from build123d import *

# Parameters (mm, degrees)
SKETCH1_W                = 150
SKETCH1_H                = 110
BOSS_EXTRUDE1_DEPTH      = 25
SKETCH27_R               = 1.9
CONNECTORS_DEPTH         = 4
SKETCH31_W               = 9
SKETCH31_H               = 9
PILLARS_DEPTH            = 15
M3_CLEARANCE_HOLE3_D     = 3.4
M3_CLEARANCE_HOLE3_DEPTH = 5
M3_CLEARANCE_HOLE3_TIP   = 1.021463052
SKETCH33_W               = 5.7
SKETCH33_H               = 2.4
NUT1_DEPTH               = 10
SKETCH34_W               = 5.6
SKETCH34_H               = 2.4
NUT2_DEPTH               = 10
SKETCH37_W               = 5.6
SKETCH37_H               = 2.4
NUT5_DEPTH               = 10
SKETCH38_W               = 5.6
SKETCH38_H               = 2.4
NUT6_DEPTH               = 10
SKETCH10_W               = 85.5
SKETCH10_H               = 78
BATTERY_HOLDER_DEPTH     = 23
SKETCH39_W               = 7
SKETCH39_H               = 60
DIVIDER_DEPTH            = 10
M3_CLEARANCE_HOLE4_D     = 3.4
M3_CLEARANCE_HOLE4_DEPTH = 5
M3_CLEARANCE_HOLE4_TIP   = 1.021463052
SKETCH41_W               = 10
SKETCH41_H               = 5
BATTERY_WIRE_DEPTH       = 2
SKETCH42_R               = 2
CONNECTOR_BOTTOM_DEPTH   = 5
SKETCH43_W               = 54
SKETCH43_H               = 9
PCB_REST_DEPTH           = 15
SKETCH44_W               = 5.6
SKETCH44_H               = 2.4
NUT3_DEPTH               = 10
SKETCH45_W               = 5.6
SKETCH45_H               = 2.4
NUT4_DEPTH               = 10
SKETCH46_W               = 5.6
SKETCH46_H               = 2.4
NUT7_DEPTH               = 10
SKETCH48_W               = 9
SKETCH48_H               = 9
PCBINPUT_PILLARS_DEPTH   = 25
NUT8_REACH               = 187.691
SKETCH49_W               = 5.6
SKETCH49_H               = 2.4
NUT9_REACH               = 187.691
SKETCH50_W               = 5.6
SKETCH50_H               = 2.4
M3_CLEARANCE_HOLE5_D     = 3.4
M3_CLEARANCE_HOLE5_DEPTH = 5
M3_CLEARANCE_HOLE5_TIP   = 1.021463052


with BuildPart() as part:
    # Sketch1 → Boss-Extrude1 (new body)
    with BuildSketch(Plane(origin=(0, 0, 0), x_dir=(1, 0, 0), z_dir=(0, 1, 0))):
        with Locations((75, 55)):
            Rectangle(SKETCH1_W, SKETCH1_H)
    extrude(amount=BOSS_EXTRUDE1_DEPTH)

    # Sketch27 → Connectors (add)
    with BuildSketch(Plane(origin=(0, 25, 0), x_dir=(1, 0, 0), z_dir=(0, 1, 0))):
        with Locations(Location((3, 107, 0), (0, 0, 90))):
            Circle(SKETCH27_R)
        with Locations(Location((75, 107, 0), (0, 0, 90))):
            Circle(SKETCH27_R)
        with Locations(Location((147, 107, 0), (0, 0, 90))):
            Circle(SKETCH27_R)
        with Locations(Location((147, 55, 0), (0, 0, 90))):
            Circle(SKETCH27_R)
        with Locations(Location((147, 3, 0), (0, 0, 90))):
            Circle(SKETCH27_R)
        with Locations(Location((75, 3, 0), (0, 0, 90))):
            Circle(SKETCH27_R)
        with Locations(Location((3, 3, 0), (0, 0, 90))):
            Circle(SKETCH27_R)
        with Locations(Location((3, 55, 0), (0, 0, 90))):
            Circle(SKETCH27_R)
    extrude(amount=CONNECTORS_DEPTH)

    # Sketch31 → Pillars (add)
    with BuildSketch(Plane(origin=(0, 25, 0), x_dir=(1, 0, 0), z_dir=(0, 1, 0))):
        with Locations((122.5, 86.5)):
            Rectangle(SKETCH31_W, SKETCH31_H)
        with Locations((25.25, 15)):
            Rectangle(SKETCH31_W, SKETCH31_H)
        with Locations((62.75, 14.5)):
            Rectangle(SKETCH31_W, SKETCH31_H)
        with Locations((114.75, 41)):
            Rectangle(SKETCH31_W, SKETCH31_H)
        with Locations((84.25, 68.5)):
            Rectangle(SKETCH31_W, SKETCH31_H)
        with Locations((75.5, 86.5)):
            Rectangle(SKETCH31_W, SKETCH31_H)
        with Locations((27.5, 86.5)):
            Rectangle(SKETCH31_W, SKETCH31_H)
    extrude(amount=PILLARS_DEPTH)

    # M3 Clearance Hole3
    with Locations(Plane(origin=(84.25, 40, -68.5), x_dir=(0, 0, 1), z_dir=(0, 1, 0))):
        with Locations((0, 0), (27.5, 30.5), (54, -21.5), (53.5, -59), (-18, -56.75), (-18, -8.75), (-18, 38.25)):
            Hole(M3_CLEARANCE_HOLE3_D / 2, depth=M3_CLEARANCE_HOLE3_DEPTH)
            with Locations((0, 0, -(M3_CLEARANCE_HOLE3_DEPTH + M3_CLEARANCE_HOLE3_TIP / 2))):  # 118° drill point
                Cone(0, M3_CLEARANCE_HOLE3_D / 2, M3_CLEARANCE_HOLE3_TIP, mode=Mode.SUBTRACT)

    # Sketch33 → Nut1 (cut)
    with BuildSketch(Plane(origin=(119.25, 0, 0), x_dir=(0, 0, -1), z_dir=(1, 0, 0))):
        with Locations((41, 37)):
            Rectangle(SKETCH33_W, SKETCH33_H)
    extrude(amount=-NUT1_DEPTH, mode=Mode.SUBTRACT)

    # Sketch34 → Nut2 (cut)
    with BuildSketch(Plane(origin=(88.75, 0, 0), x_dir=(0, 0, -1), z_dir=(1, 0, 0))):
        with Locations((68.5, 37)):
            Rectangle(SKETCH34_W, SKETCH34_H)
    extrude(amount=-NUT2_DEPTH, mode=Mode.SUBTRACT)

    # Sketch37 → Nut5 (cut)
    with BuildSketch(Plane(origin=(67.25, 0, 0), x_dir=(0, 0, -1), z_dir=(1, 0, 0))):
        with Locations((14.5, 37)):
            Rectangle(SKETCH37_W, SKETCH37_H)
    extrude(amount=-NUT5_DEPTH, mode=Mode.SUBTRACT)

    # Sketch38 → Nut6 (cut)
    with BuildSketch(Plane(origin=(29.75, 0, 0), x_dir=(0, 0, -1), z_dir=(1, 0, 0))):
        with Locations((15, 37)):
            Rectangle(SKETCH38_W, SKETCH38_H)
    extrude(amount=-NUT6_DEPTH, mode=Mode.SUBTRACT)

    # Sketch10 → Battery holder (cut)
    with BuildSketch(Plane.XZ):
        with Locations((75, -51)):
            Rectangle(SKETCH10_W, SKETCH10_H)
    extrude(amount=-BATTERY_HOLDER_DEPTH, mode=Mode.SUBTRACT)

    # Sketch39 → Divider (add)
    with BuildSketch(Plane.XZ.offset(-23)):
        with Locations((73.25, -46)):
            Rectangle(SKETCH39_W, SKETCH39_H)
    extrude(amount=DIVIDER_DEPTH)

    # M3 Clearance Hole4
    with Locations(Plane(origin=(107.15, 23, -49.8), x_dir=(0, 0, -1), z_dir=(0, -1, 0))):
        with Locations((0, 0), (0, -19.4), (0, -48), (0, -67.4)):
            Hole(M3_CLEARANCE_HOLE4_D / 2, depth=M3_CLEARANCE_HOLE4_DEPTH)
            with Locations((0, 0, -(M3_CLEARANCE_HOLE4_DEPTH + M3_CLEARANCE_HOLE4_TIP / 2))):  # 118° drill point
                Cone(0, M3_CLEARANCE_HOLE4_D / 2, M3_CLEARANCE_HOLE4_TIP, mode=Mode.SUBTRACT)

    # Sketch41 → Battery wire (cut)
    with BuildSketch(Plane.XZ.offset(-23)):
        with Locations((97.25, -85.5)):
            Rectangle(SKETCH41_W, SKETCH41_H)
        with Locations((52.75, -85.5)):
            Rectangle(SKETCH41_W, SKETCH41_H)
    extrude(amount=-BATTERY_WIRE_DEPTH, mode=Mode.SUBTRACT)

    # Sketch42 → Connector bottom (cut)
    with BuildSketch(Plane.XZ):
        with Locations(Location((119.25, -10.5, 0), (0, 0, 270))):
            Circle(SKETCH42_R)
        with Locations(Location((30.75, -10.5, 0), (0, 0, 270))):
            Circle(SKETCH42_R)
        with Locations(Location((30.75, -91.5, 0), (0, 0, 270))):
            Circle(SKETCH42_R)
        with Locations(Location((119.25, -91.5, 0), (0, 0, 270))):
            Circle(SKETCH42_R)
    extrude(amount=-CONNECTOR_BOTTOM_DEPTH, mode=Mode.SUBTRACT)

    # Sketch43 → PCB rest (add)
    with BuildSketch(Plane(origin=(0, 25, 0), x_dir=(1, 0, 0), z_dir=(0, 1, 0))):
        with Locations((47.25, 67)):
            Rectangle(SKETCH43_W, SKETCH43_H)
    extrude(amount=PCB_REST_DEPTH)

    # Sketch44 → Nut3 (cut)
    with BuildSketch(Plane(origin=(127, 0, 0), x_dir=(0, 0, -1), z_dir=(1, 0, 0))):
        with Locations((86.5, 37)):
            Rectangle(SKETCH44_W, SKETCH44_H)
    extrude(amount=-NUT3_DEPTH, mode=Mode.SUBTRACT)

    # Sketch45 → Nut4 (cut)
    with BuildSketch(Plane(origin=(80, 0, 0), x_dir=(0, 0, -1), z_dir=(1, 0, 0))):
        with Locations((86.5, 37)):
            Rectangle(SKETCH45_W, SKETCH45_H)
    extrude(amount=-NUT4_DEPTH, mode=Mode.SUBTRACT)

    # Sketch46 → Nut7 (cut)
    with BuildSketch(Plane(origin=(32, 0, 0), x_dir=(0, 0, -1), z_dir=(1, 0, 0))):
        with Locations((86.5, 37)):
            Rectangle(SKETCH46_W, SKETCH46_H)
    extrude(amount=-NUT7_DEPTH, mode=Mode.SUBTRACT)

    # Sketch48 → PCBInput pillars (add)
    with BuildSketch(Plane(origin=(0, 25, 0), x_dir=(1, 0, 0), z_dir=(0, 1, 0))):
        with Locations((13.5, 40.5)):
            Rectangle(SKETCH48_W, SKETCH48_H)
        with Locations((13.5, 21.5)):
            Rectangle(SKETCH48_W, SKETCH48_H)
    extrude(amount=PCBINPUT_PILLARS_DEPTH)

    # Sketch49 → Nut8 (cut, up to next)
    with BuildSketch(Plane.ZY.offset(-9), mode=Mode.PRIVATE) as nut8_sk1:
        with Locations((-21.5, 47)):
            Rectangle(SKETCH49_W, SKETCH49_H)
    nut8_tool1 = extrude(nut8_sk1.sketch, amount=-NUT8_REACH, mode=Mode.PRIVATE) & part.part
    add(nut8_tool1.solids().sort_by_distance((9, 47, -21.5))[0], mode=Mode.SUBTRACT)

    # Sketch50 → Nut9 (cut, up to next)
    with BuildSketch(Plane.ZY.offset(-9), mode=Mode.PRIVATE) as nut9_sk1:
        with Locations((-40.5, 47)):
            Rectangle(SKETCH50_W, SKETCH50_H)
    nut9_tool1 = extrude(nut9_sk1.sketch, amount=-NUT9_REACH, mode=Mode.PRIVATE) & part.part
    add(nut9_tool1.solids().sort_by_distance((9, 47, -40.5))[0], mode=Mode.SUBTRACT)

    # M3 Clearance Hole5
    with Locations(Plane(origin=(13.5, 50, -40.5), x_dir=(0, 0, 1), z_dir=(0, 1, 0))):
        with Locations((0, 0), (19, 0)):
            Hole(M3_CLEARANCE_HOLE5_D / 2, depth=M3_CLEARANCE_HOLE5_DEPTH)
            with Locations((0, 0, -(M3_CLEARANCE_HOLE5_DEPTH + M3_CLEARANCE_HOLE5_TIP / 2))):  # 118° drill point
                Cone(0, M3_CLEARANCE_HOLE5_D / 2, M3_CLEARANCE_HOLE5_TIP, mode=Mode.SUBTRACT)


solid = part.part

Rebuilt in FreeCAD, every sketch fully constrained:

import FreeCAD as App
import Part
import Sketcher
Q = App.Units.Quantity


def add_polygon(sketch, points):
    """Adds a closed chain of lines whose ends are joined by coincident constraints."""
    first, n = sketch.GeometryCount, len(points)
    for a, b in zip(points, points[1:] + points[:1]):
        sketch.addGeometry(Part.LineSegment(App.Vector(*a, 0), App.Vector(*b, 0)), False)
    for i in range(n):
        sketch.addConstraint(Sketcher.Constraint("Coincident", first + i, 2, first + (i + 1) % n, 1))

doc = App.newDocument("Part")
body = doc.addObject("PartDesign::Body", "Body")

sketch1 = body.newObject("Sketcher::SketchObject", "Sketch")
sketch1.AttachmentSupport = (doc.getObject("XZ_Plane"), [""])
sketch1.MapMode = "FlatFace"
add_polygon(sketch1, [(0, -110), (0, 0), (150, 0), (150, -110)])
sketch1.addConstraint(Sketcher.Constraint("Vertical", 0))
sketch1.addConstraint(Sketcher.Constraint("Horizontal", 1))
sketch1.addConstraint(Sketcher.Constraint("Vertical", 2))
sketch1.addConstraint(Sketcher.Constraint("Horizontal", 3))
sketch1.addConstraint(Sketcher.Constraint("Coincident", 0, 2, -1, 1))
sketch1.addConstraint(Sketcher.Constraint("DistanceX", 1, 1, 1, 2, Q("150 mm")))
sketch1.addConstraint(Sketcher.Constraint("DistanceY", 0, 1, 0, 2, Q("110 mm")))
pad1 = body.newObject("PartDesign::Pad", "Pad")
pad1.Profile = sketch1
pad1.Length = 25
pad1.Reversed = True

sketch2 = body.newObject("Sketcher::SketchObject", "Sketch001")
sketch2.AttachmentSupport = (doc.getObject("XZ_Plane"), [""])
sketch2.MapMode = "FlatFace"
sketch2.AttachmentOffset = App.Placement(App.Vector(0, 0, -25), App.Rotation())
sketch2.addGeometry(Part.Circle(App.Vector(3, -107, 0), App.Vector(0, 0, 1), 1.9), False)
sketch2.addGeometry(Part.Circle(App.Vector(75, -107, 0), App.Vector(0, 0, 1), 1.9), False)
sketch2.addGeometry(Part.Circle(App.Vector(147, -107, 0), App.Vector(0, 0, 1), 1.9), False)
sketch2.addGeometry(Part.Circle(App.Vector(147, -55, 0), App.Vector(0, 0, 1), 1.9), False)
sketch2.addGeometry(Part.Circle(App.Vector(147, -3, 0), App.Vector(0, 0, 1), 1.9), False)
sketch2.addGeometry(Part.Circle(App.Vector(75, -3, 0), App.Vector(0, 0, 1), 1.9), False)
sketch2.addGeometry(Part.Circle(App.Vector(3, -3, 0), App.Vector(0, 0, 1), 1.9), False)
sketch2.addGeometry(Part.Circle(App.Vector(3, -55, 0), App.Vector(0, 0, 1), 1.9), False)
sketch2.addConstraint(Sketcher.Constraint("Equal", 0, 1))
sketch2.addConstraint(Sketcher.Constraint("Equal", 1, 2))
sketch2.addConstraint(Sketcher.Constraint("Equal", 2, 3))
sketch2.addConstraint(Sketcher.Constraint("Equal", 3, 4))
sketch2.addConstraint(Sketcher.Constraint("Equal", 4, 5))
sketch2.addConstraint(Sketcher.Constraint("Equal", 5, 6))
sketch2.addConstraint(Sketcher.Constraint("Equal", 6, 7))
sketch2.addConstraint(Sketcher.Constraint("Horizontal", 0, 3, 1, 3))
sketch2.addConstraint(Sketcher.Constraint("Horizontal", 1, 3, 2, 3))
sketch2.addConstraint(Sketcher.Constraint("Horizontal", 4, 3, 5, 3))
sketch2.addConstraint(Sketcher.Constraint("Horizontal", 5, 3, 6, 3))
sketch2.addConstraint(Sketcher.Constraint("Horizontal", 3, 3, 7, 3))
sketch2.addConstraint(Sketcher.Constraint("Vertical", 2, 3, 3, 3))
sketch2.addConstraint(Sketcher.Constraint("Vertical", 3, 3, 4, 3))
sketch2.addConstraint(Sketcher.Constraint("Vertical", 1, 3, 5, 3))
sketch2.addConstraint(Sketcher.Constraint("Vertical", 0, 3, 6, 3))
sketch2.addConstraint(Sketcher.Constraint("Vertical", 6, 3, 7, 3))
sketch2.addConstraint(Sketcher.Constraint("Diameter", 0, Q("3.8 mm")))
sketch2.addConstraint(Sketcher.Constraint("DistanceX", -1, 1, 0, 3, Q("3 mm")))
sketch2.addConstraint(Sketcher.Constraint("DistanceY", 0, 3, -1, 1, Q("107 mm")))
sketch2.addConstraint(Sketcher.Constraint("DistanceX", -1, 1, 1, 3, Q("75 mm")))
sketch2.addConstraint(Sketcher.Constraint("DistanceX", -1, 1, 2, 3, Q("147 mm")))
sketch2.addConstraint(Sketcher.Constraint("DistanceY", 3, 3, -1, 1, Q("55 mm")))
sketch2.addConstraint(Sketcher.Constraint("DistanceY", 4, 3, -1, 1, Q("3 mm")))
pad2 = body.newObject("PartDesign::Pad", "Pad001")
pad2.Profile = sketch2
pad2.Length = 4
pad2.Reversed = True

sketch3 = body.newObject("Sketcher::SketchObject", "Sketch002")
sketch3.AttachmentSupport = (doc.getObject("XZ_Plane"), [""])
sketch3.MapMode = "FlatFace"
sketch3.AttachmentOffset = App.Placement(App.Vector(0, 0, -25), App.Rotation())
add_polygon(sketch3, [(118, -91), (118, -82), (127, -82), (127, -91)])
add_polygon(sketch3, [(21, -20), (21, -10), (30, -10), (30, -20)])
add_polygon(sketch3, [(58, -19), (58, -10), (67, -10), (67, -19)])
add_polygon(sketch3, [(110, -46), (110, -36), (119, -36), (119, -46)])
add_polygon(sketch3, [(80, -73), (80, -64), (89, -64), (89, -73)])
add_polygon(sketch3, [(71, -91), (71, -82), (80, -82), (80, -91)])
add_polygon(sketch3, [(23, -91), (23, -82), (32, -82), (32, -91)])
sketch3.addConstraint(Sketcher.Constraint("Vertical", 0))
sketch3.addConstraint(Sketcher.Constraint("Horizontal", 1))
sketch3.addConstraint(Sketcher.Constraint("Vertical", 2))
sketch3.addConstraint(Sketcher.Constraint("Horizontal", 3))
sketch3.addConstraint(Sketcher.Constraint("Vertical", 4))
sketch3.addConstraint(Sketcher.Constraint("Horizontal", 5))
sketch3.addConstraint(Sketcher.Constraint("Vertical", 6))
sketch3.addConstraint(Sketcher.Constraint("Horizontal", 7))
sketch3.addConstraint(Sketcher.Constraint("Vertical", 8))
sketch3.addConstraint(Sketcher.Constraint("Horizontal", 9))
sketch3.addConstraint(Sketcher.Constraint("Vertical", 10))
sketch3.addConstraint(Sketcher.Constraint("Horizontal", 11))
sketch3.addConstraint(Sketcher.Constraint("Vertical", 12))
sketch3.addConstraint(Sketcher.Constraint("Horizontal", 13))
sketch3.addConstraint(Sketcher.Constraint("Vertical", 14))
sketch3.addConstraint(Sketcher.Constraint("Horizontal", 15))
sketch3.addConstraint(Sketcher.Constraint("Vertical", 16))
sketch3.addConstraint(Sketcher.Constraint("Horizontal", 17))
sketch3.addConstraint(Sketcher.Constraint("Vertical", 18))
sketch3.addConstraint(Sketcher.Constraint("Horizontal", 19))
sketch3.addConstraint(Sketcher.Constraint("Vertical", 20))
sketch3.addConstraint(Sketcher.Constraint("Horizontal", 21))
sketch3.addConstraint(Sketcher.Constraint("Vertical", 22))
sketch3.addConstraint(Sketcher.Constraint("Horizontal", 23))
sketch3.addConstraint(Sketcher.Constraint("Vertical", 24))
sketch3.addConstraint(Sketcher.Constraint("Horizontal", 25))
sketch3.addConstraint(Sketcher.Constraint("Vertical", 26))
sketch3.addConstraint(Sketcher.Constraint("Horizontal", 27))
sketch3.addConstraint(Sketcher.Constraint("Horizontal", 1, 2, 20, 2))
sketch3.addConstraint(Sketcher.Constraint("Horizontal", 3, 2, 22, 2))
sketch3.addConstraint(Sketcher.Constraint("Horizontal", 21, 2, 24, 2))
sketch3.addConstraint(Sketcher.Constraint("Horizontal", 23, 2, 26, 2))
sketch3.addConstraint(Sketcher.Constraint("Equal", 3, 5))
sketch3.addConstraint(Sketcher.Constraint("Equal", 7, 9))
sketch3.addConstraint(Sketcher.Constraint("Equal", 11, 13))
sketch3.addConstraint(Sketcher.Constraint("Equal", 15, 17))
sketch3.addConstraint(Sketcher.Constraint("Equal", 19, 21))
sketch3.addConstraint(Sketcher.Constraint("Equal", 23, 25))
sketch3.addConstraint(Sketcher.Constraint("Equal", 27, 0))
sketch3.addConstraint(Sketcher.Constraint("Equal", 2, 4))
sketch3.addConstraint(Sketcher.Constraint("Equal", 6, 8))
sketch3.addConstraint(Sketcher.Constraint("Equal", 10, 12))
sketch3.addConstraint(Sketcher.Constraint("Equal", 14, 16))
sketch3.addConstraint(Sketcher.Constraint("DistanceX", 1, 1, 1, 2, Q("9 mm")))
sketch3.addConstraint(Sketcher.Constraint("DistanceX", -1, 1, 0, 2, Q("118 mm")))
sketch3.addConstraint(Sketcher.Constraint("DistanceY", 0, 2, -1, 1, Q("82 mm")))
sketch3.addConstraint(Sketcher.Constraint("DistanceY", 8, 2, -1, 1, Q("10 mm")))
sketch3.addConstraint(Sketcher.Constraint("DistanceY", 16, 2, -1, 1, Q("64 mm")))
sketch3.addConstraint(Sketcher.Constraint("DistanceX", -1, 1, 20, 2, Q("71 mm")))
sketch3.addConstraint(Sketcher.Constraint("DistanceX", -1, 1, 24, 2, Q("23 mm")))
sketch3.addConstraint(Sketcher.Constraint("DistanceX", 10, 2, 12, 2, Q("43 mm")))
sketch3.addConstraint(Sketcher.Constraint("DistanceY", 4, 2, -1, 1, Q("10.5 mm")))
sketch3.addConstraint(Sketcher.Constraint("DistanceY", 12, 2, -1, 1, Q("36.5 mm")))
sketch3.addConstraint(Sketcher.Constraint("DistanceX", 5, 2, 8, 2, Q("28.5 mm")))
sketch3.addConstraint(Sketcher.Constraint("DistanceX", 16, 2, 15, 2, Q("30.5 mm")))
sketch3.addConstraint(Sketcher.Constraint("DistanceX", -1, 1, 4, 2, Q("20.75 mm")))
pad3 = body.newObject("PartDesign::Pad", "Pad002")
pad3.Profile = sketch3
pad3.Length = 15
pad3.Reversed = True

sketch4 = body.newObject("Sketcher::SketchObject", "Sketch003")
sketch4.AttachmentSupport = (doc.getObject("XZ_Plane"), [""])
sketch4.MapMode = "FlatFace"
sketch4.AttachmentOffset = App.Placement(App.Vector(0, 0, -40), App.Rotation())
sketch4.addGeometry(Part.Circle(App.Vector(84.2, -68.5, 0), App.Vector(0, 0, 1), 1.7), False)
sketch4.addGeometry(Part.Circle(App.Vector(114.8, -41, 0), App.Vector(0, 0, 1), 1.7), False)
sketch4.addGeometry(Part.Circle(App.Vector(62.8, -14.5, 0), App.Vector(0, 0, 1), 1.7), False)
sketch4.addGeometry(Part.Circle(App.Vector(25.2, -15, 0), App.Vector(0, 0, 1), 1.7), False)
sketch4.addGeometry(Part.Circle(App.Vector(27.5, -86.5, 0), App.Vector(0, 0, 1), 1.7), False)
sketch4.addGeometry(Part.Circle(App.Vector(75.5, -86.5, 0), App.Vector(0, 0, 1), 1.7), False)
sketch4.addGeometry(Part.Circle(App.Vector(122.5, -86.5, 0), App.Vector(0, 0, 1), 1.7), False)
sketch4.addConstraint(Sketcher.Constraint("Equal", 0, 1))
sketch4.addConstraint(Sketcher.Constraint("Equal", 1, 2))
sketch4.addConstraint(Sketcher.Constraint("Equal", 2, 3))
sketch4.addConstraint(Sketcher.Constraint("Equal", 3, 4))
sketch4.addConstraint(Sketcher.Constraint("Equal", 4, 5))
sketch4.addConstraint(Sketcher.Constraint("Equal", 5, 6))
sketch4.addConstraint(Sketcher.Constraint("Horizontal", 4, 3, 5, 3))
sketch4.addConstraint(Sketcher.Constraint("Horizontal", 5, 3, 6, 3))
sketch4.addConstraint(Sketcher.Constraint("Diameter", 0, Q("3.4 mm")))
sketch4.addConstraint(Sketcher.Constraint("DistanceY", 1, 3, -1, 1, Q("41 mm")))
sketch4.addConstraint(Sketcher.Constraint("DistanceY", 3, 3, -1, 1, Q("15 mm")))
sketch4.addConstraint(Sketcher.Constraint("DistanceY", 0, 3, 2, 3, Q("54 mm")))
sketch4.addConstraint(Sketcher.Constraint("DistanceX", 2, 3, 1, 3, Q("52 mm")))
sketch4.addConstraint(Sketcher.Constraint("DistanceX", 3, 3, 0, 3, Q("59 mm")))
sketch4.addConstraint(Sketcher.Constraint("DistanceY", 4, 3, 0, 3, Q("18 mm")))
sketch4.addConstraint(Sketcher.Constraint("DistanceX", 4, 3, 5, 3, Q("48 mm")))
sketch4.addConstraint(Sketcher.Constraint("DistanceX", 5, 3, 6, 3, Q("47 mm")))
sketch4.addConstraint(Sketcher.Constraint("DistanceY", 0, 3, -1, 1, Q("68.5 mm")))
sketch4.addConstraint(Sketcher.Constraint("DistanceX", -1, 1, 4, 3, Q("27.5 mm")))
sketch4.addConstraint(Sketcher.Constraint("DistanceX", 0, 3, 1, 3, Q("30.5 mm")))
sketch4.addConstraint(Sketcher.Constraint("DistanceX", -1, 1, 0, 3, Q("84.25 mm")))
doc.recompute()
hole = body.newObject("PartDesign::Hole", "Hole")
hole.Profile = sketch4
hole.ThreadType = "None"
hole.Diameter = 3.4
hole.DepthType = "Dimension"
hole.Depth = 5
hole.DrillPoint = "Angled"
hole.DrillPointAngle = 118
hole.Reversed = True

sketch5 = body.newObject("Sketcher::SketchObject", "Sketch004")
sketch5.AttachmentSupport = (doc.getObject("YZ_Plane"), [""])
sketch5.MapMode = "FlatFace"
sketch5.AttachmentOffset = App.Placement(App.Vector(0, 0, 119.25), App.Rotation())
add_polygon(sketch5, [(38.2, -38.1), (35.8, -38.1), (35.8, -43.9), (38.2, -43.9)])
sketch5.addConstraint(Sketcher.Constraint("Horizontal", 0))
sketch5.addConstraint(Sketcher.Constraint("Vertical", 1))
sketch5.addConstraint(Sketcher.Constraint("Horizontal", 2))
sketch5.addConstraint(Sketcher.Constraint("Vertical", 3))
sketch5.addConstraint(Sketcher.Constraint("DistanceX", 0, 2, 0, 1, Q("2.4 mm")))
sketch5.addConstraint(Sketcher.Constraint("DistanceY", 1, 2, 1, 1, Q("5.7 mm")))
sketch5.addConstraint(Sketcher.Constraint("DistanceX", -1, 1, 0, 2, Q("35.8 mm")))
sketch5.addConstraint(Sketcher.Constraint("DistanceY", 0, 2, -1, 1, Q("38.15 mm")))
pocket1 = body.newObject("PartDesign::Pocket", "Pocket")
pocket1.Profile = sketch5
pocket1.Length = 10

sketch6 = body.newObject("Sketcher::SketchObject", "Sketch005")
sketch6.AttachmentSupport = (doc.getObject("YZ_Plane"), [""])
sketch6.MapMode = "FlatFace"
sketch6.AttachmentOffset = App.Placement(App.Vector(0, 0, 88.75), App.Rotation())
add_polygon(sketch6, [(38.2, -65.7), (35.8, -65.7), (35.8, -71.3), (38.2, -71.3)])
sketch6.addConstraint(Sketcher.Constraint("Horizontal", 0))
sketch6.addConstraint(Sketcher.Constraint("Vertical", 1))
sketch6.addConstraint(Sketcher.Constraint("Horizontal", 2))
sketch6.addConstraint(Sketcher.Constraint("Vertical", 3))
sketch6.addConstraint(Sketcher.Constraint("DistanceX", 0, 2, 0, 1, Q("2.4 mm")))
sketch6.addConstraint(Sketcher.Constraint("DistanceY", 1, 2, 1, 1, Q("5.6 mm")))
sketch6.addConstraint(Sketcher.Constraint("DistanceX", -1, 1, 0, 2, Q("35.8 mm")))
sketch6.addConstraint(Sketcher.Constraint("DistanceY", 0, 2, -1, 1, Q("65.7 mm")))
pocket2 = body.newObject("PartDesign::Pocket", "Pocket001")
pocket2.Profile = sketch6
pocket2.Length = 10

sketch7 = body.newObject("Sketcher::SketchObject", "Sketch006")
sketch7.AttachmentSupport = (doc.getObject("YZ_Plane"), [""])
sketch7.MapMode = "FlatFace"
sketch7.AttachmentOffset = App.Placement(App.Vector(0, 0, 67.25), App.Rotation())
add_polygon(sketch7, [(38.2, -11.7), (35.8, -11.7), (35.8, -17.3), (38.2, -17.3)])
sketch7.addConstraint(Sketcher.Constraint("Horizontal", 0))
sketch7.addConstraint(Sketcher.Constraint("Vertical", 1))
sketch7.addConstraint(Sketcher.Constraint("Horizontal", 2))
sketch7.addConstraint(Sketcher.Constraint("Vertical", 3))
sketch7.addConstraint(Sketcher.Constraint("DistanceX", 0, 2, 0, 1, Q("2.4 mm")))
sketch7.addConstraint(Sketcher.Constraint("DistanceY", 1, 2, 1, 1, Q("5.6 mm")))
sketch7.addConstraint(Sketcher.Constraint("DistanceX", -1, 1, 0, 2, Q("35.8 mm")))
sketch7.addConstraint(Sketcher.Constraint("DistanceY", 0, 2, -1, 1, Q("11.7 mm")))
pocket3 = body.newObject("PartDesign::Pocket", "Pocket002")
pocket3.Profile = sketch7
pocket3.Length = 10

sketch8 = body.newObject("Sketcher::SketchObject", "Sketch007")
sketch8.AttachmentSupport = (doc.getObject("YZ_Plane"), [""])
sketch8.MapMode = "FlatFace"
sketch8.AttachmentOffset = App.Placement(App.Vector(0, 0, 29.75), App.Rotation())
add_polygon(sketch8, [(38.2, -12.2), (35.8, -12.2), (35.8, -17.8), (38.2, -17.8)])
sketch8.addConstraint(Sketcher.Constraint("Horizontal", 0))
sketch8.addConstraint(Sketcher.Constraint("Vertical", 1))
sketch8.addConstraint(Sketcher.Constraint("Horizontal", 2))
sketch8.addConstraint(Sketcher.Constraint("Vertical", 3))
sketch8.addConstraint(Sketcher.Constraint("DistanceX", 0, 2, 0, 1, Q("2.4 mm")))
sketch8.addConstraint(Sketcher.Constraint("DistanceY", 1, 2, 1, 1, Q("5.6 mm")))
sketch8.addConstraint(Sketcher.Constraint("DistanceX", -1, 1, 0, 2, Q("35.8 mm")))
sketch8.addConstraint(Sketcher.Constraint("DistanceY", 0, 2, -1, 1, Q("12.2 mm")))
pocket4 = body.newObject("PartDesign::Pocket", "Pocket003")
pocket4.Profile = sketch8
pocket4.Length = 10

sketch9 = body.newObject("Sketcher::SketchObject", "Sketch008")
sketch9.AttachmentSupport = (doc.getObject("XZ_Plane"), [""])
sketch9.MapMode = "FlatFace"
add_polygon(sketch9, [(32, -12), (32, -90), (118, -90), (118, -12)])
sketch9.addConstraint(Sketcher.Constraint("Vertical", 0))
sketch9.addConstraint(Sketcher.Constraint("Horizontal", 1))
sketch9.addConstraint(Sketcher.Constraint("Vertical", 2))
sketch9.addConstraint(Sketcher.Constraint("Horizontal", 3))
sketch9.addConstraint(Sketcher.Constraint("DistanceY", 0, 2, 0, 1, Q("78 mm")))
sketch9.addConstraint(Sketcher.Constraint("DistanceX", 1, 1, 1, 2, Q("85.5 mm")))
sketch9.addConstraint(Sketcher.Constraint("DistanceY", 0, 2, -1, 1, Q("90 mm")))
sketch9.addConstraint(Sketcher.Constraint("DistanceX", -1, 1, 0, 2, Q("32.25 mm")))
pocket5 = body.newObject("PartDesign::Pocket", "Pocket004")
pocket5.Profile = sketch9
pocket5.Length = 23

sketch10 = body.newObject("Sketcher::SketchObject", "Sketch009")
sketch10.AttachmentSupport = (doc.getObject("XZ_Plane"), [""])
sketch10.MapMode = "FlatFace"
sketch10.AttachmentOffset = App.Placement(App.Vector(0, 0, -23), App.Rotation())
add_polygon(sketch10, [(70, -16), (70, -76), (77, -76), (77, -16)])
sketch10.addConstraint(Sketcher.Constraint("Vertical", 0))
sketch10.addConstraint(Sketcher.Constraint("Horizontal", 1))
sketch10.addConstraint(Sketcher.Constraint("Vertical", 2))
sketch10.addConstraint(Sketcher.Constraint("Horizontal", 3))
sketch10.addConstraint(Sketcher.Constraint("DistanceX", 1, 1, 1, 2, Q("7 mm")))
sketch10.addConstraint(Sketcher.Constraint("DistanceY", 0, 2, 0, 1, Q("60 mm")))
sketch10.addConstraint(Sketcher.Constraint("DistanceY", 0, 2, -1, 1, Q("76 mm")))
sketch10.addConstraint(Sketcher.Constraint("DistanceX", -1, 1, 0, 2, Q("69.75 mm")))
pad4 = body.newObject("PartDesign::Pad", "Pad003")
pad4.Profile = sketch10
pad4.Length = 10

sketch11 = body.newObject("Sketcher::SketchObject", "Sketch010")
sketch11.AttachmentSupport = (doc.getObject("XZ_Plane"), [""])
sketch11.MapMode = "FlatFace"
sketch11.AttachmentOffset = App.Placement(App.Vector(0, 0, -23), App.Rotation())
sketch11.addGeometry(Part.Circle(App.Vector(107.2, -49.8, 0), App.Vector(0, 0, 1), 1.7), False)
sketch11.addGeometry(Part.Circle(App.Vector(87.8, -49.8, 0), App.Vector(0, 0, 1), 1.7), False)
sketch11.addGeometry(Part.Circle(App.Vector(59.1, -49.8, 0), App.Vector(0, 0, 1), 1.7), False)
sketch11.addGeometry(Part.Circle(App.Vector(39.8, -49.8, 0), App.Vector(0, 0, 1), 1.7), False)
sketch11.addConstraint(Sketcher.Constraint("Equal", 0, 1))
sketch11.addConstraint(Sketcher.Constraint("Equal", 1, 2))
sketch11.addConstraint(Sketcher.Constraint("Equal", 2, 3))
sketch11.addConstraint(Sketcher.Constraint("Horizontal", 0, 3, 1, 3))
sketch11.addConstraint(Sketcher.Constraint("Horizontal", 1, 3, 2, 3))
sketch11.addConstraint(Sketcher.Constraint("Horizontal", 2, 3, 3, 3))
sketch11.addConstraint(Sketcher.Constraint("Diameter", 0, Q("3.4 mm")))
sketch11.addConstraint(Sketcher.Constraint("DistanceX", 2, 3, 0, 3, Q("48 mm")))
sketch11.addConstraint(Sketcher.Constraint("DistanceX", 3, 3, 1, 3, Q("48 mm")))
sketch11.addConstraint(Sketcher.Constraint("DistanceY", 0, 3, -1, 1, Q("49.8 mm")))
sketch11.addConstraint(Sketcher.Constraint("DistanceX", 1, 3, 0, 3, Q("19.4 mm")))
sketch11.addConstraint(Sketcher.Constraint("DistanceX", -1, 1, 0, 3, Q("107.15 mm")))
doc.recompute()
hole2 = body.newObject("PartDesign::Hole", "Hole001")
hole2.Profile = sketch11
hole2.ThreadType = "None"
hole2.Diameter = 3.4
hole2.DepthType = "Dimension"
hole2.Depth = 5
hole2.DrillPoint = "Angled"
hole2.DrillPointAngle = 118

sketch12 = body.newObject("Sketcher::SketchObject", "Sketch011")
sketch12.AttachmentSupport = (doc.getObject("XZ_Plane"), [""])
sketch12.MapMode = "FlatFace"
sketch12.AttachmentOffset = App.Placement(App.Vector(0, 0, -23), App.Rotation())
add_polygon(sketch12, [(92, -83), (92, -88), (102, -88), (102, -83)])
add_polygon(sketch12, [(48, -83), (48, -88), (58, -88), (58, -83)])
sketch12.addConstraint(Sketcher.Constraint("Vertical", 0))
sketch12.addConstraint(Sketcher.Constraint("Horizontal", 1))
sketch12.addConstraint(Sketcher.Constraint("Vertical", 2))
sketch12.addConstraint(Sketcher.Constraint("Horizontal", 3))
sketch12.addConstraint(Sketcher.Constraint("Vertical", 4))
sketch12.addConstraint(Sketcher.Constraint("Horizontal", 5))
sketch12.addConstraint(Sketcher.Constraint("Vertical", 6))
sketch12.addConstraint(Sketcher.Constraint("Horizontal", 7))
sketch12.addConstraint(Sketcher.Constraint("Horizontal", 1, 2, 4, 2))
sketch12.addConstraint(Sketcher.Constraint("Horizontal", 3, 2, 6, 2))
sketch12.addConstraint(Sketcher.Constraint("Equal", 3, 5))
sketch12.addConstraint(Sketcher.Constraint("DistanceX", 1, 1, 1, 2, Q("10 mm")))
sketch12.addConstraint(Sketcher.Constraint("DistanceY", 0, 2, 0, 1, Q("5 mm")))
sketch12.addConstraint(Sketcher.Constraint("DistanceY", 0, 2, -1, 1, Q("88 mm")))
sketch12.addConstraint(Sketcher.Constraint("DistanceX", 4, 2, 0, 2, Q("44.5 mm")))
sketch12.addConstraint(Sketcher.Constraint("DistanceX", -1, 1, 0, 2, Q("92.25 mm")))
pocket6 = body.newObject("PartDesign::Pocket", "Pocket005")
pocket6.Profile = sketch12
pocket6.Length = 2

sketch13 = body.newObject("Sketcher::SketchObject", "Sketch012")
sketch13.AttachmentSupport = (doc.getObject("XZ_Plane"), [""])
sketch13.MapMode = "FlatFace"
sketch13.addGeometry(Part.Circle(App.Vector(119.2, -10.5, 0), App.Vector(0, 0, 1), 2), False)
sketch13.addGeometry(Part.Circle(App.Vector(30.8, -10.5, 0), App.Vector(0, 0, 1), 2), False)
sketch13.addGeometry(Part.Circle(App.Vector(30.8, -91.5, 0), App.Vector(0, 0, 1), 2), False)
sketch13.addGeometry(Part.Circle(App.Vector(119.2, -91.5, 0), App.Vector(0, 0, 1), 2), False)
sketch13.addConstraint(Sketcher.Constraint("Equal", 0, 1))
sketch13.addConstraint(Sketcher.Constraint("Equal", 1, 2))
sketch13.addConstraint(Sketcher.Constraint("Equal", 2, 3))
sketch13.addConstraint(Sketcher.Constraint("Horizontal", 0, 3, 1, 3))
sketch13.addConstraint(Sketcher.Constraint("Horizontal", 2, 3, 3, 3))
sketch13.addConstraint(Sketcher.Constraint("Vertical", 1, 3, 2, 3))
sketch13.addConstraint(Sketcher.Constraint("Vertical", 0, 3, 3, 3))
sketch13.addConstraint(Sketcher.Constraint("Diameter", 0, Q("4 mm")))
sketch13.addConstraint(Sketcher.Constraint("DistanceY", 2, 3, 1, 3, Q("81 mm")))
sketch13.addConstraint(Sketcher.Constraint("DistanceY", 0, 3, -1, 1, Q("10.5 mm")))
sketch13.addConstraint(Sketcher.Constraint("DistanceX", 1, 3, 0, 3, Q("88.5 mm")))
sketch13.addConstraint(Sketcher.Constraint("DistanceX", -1, 1, 0, 3, Q("119.25 mm")))
pocket7 = body.newObject("PartDesign::Pocket", "Pocket006")
pocket7.Profile = sketch13
pocket7.Length = 5

sketch14 = body.newObject("Sketcher::SketchObject", "Sketch013")
sketch14.AttachmentSupport = (doc.getObject("XZ_Plane"), [""])
sketch14.MapMode = "FlatFace"
sketch14.AttachmentOffset = App.Placement(App.Vector(0, 0, -25), App.Rotation())
add_polygon(sketch14, [(20, -72), (20, -62), (74, -62), (74, -72)])
sketch14.addConstraint(Sketcher.Constraint("Vertical", 0))
sketch14.addConstraint(Sketcher.Constraint("Horizontal", 1))
sketch14.addConstraint(Sketcher.Constraint("Vertical", 2))
sketch14.addConstraint(Sketcher.Constraint("Horizontal", 3))
sketch14.addConstraint(Sketcher.Constraint("DistanceX", 1, 1, 1, 2, Q("54 mm")))
sketch14.addConstraint(Sketcher.Constraint("DistanceY", 0, 1, 0, 2, Q("9 mm")))
sketch14.addConstraint(Sketcher.Constraint("DistanceY", 0, 2, -1, 1, Q("62.5 mm")))
sketch14.addConstraint(Sketcher.Constraint("DistanceX", -1, 1, 0, 2, Q("20.25 mm")))
pad5 = body.newObject("PartDesign::Pad", "Pad004")
pad5.Profile = sketch14
pad5.Length = 15
pad5.Reversed = True

sketch15 = body.newObject("Sketcher::SketchObject", "Sketch014")
sketch15.AttachmentSupport = (doc.getObject("YZ_Plane"), [""])
sketch15.MapMode = "FlatFace"
sketch15.AttachmentOffset = App.Placement(App.Vector(0, 0, 127), App.Rotation())
add_polygon(sketch15, [(38.2, -83.7), (35.8, -83.7), (35.8, -89.3), (38.2, -89.3)])
sketch15.addConstraint(Sketcher.Constraint("Horizontal", 0))
sketch15.addConstraint(Sketcher.Constraint("Vertical", 1))
sketch15.addConstraint(Sketcher.Constraint("Horizontal", 2))
sketch15.addConstraint(Sketcher.Constraint("Vertical", 3))
sketch15.addConstraint(Sketcher.Constraint("DistanceX", 0, 2, 0, 1, Q("2.4 mm")))
sketch15.addConstraint(Sketcher.Constraint("DistanceY", 1, 2, 1, 1, Q("5.6 mm")))
sketch15.addConstraint(Sketcher.Constraint("DistanceX", -1, 1, 0, 2, Q("35.8 mm")))
sketch15.addConstraint(Sketcher.Constraint("DistanceY", 0, 2, -1, 1, Q("83.7 mm")))
pocket8 = body.newObject("PartDesign::Pocket", "Pocket007")
pocket8.Profile = sketch15
pocket8.Length = 10

sketch16 = body.newObject("Sketcher::SketchObject", "Sketch015")
sketch16.AttachmentSupport = (doc.getObject("YZ_Plane"), [""])
sketch16.MapMode = "FlatFace"
sketch16.AttachmentOffset = App.Placement(App.Vector(0, 0, 80), App.Rotation())
add_polygon(sketch16, [(38.2, -83.7), (35.8, -83.7), (35.8, -89.3), (38.2, -89.3)])
sketch16.addConstraint(Sketcher.Constraint("Horizontal", 0))
sketch16.addConstraint(Sketcher.Constraint("Vertical", 1))
sketch16.addConstraint(Sketcher.Constraint("Horizontal", 2))
sketch16.addConstraint(Sketcher.Constraint("Vertical", 3))
sketch16.addConstraint(Sketcher.Constraint("DistanceX", 0, 2, 0, 1, Q("2.4 mm")))
sketch16.addConstraint(Sketcher.Constraint("DistanceY", 1, 2, 1, 1, Q("5.6 mm")))
sketch16.addConstraint(Sketcher.Constraint("DistanceX", -1, 1, 0, 2, Q("35.8 mm")))
sketch16.addConstraint(Sketcher.Constraint("DistanceY", 0, 2, -1, 1, Q("83.7 mm")))
pocket9 = body.newObject("PartDesign::Pocket", "Pocket008")
pocket9.Profile = sketch16
pocket9.Length = 10

sketch17 = body.newObject("Sketcher::SketchObject", "Sketch016")
sketch17.AttachmentSupport = (doc.getObject("YZ_Plane"), [""])
sketch17.MapMode = "FlatFace"
sketch17.AttachmentOffset = App.Placement(App.Vector(0, 0, 32), App.Rotation())
add_polygon(sketch17, [(38.2, -83.7), (35.8, -83.7), (35.8, -89.3), (38.2, -89.3)])
sketch17.addConstraint(Sketcher.Constraint("Horizontal", 0))
sketch17.addConstraint(Sketcher.Constraint("Vertical", 1))
sketch17.addConstraint(Sketcher.Constraint("Horizontal", 2))
sketch17.addConstraint(Sketcher.Constraint("Vertical", 3))
sketch17.addConstraint(Sketcher.Constraint("DistanceX", 0, 2, 0, 1, Q("2.4 mm")))
sketch17.addConstraint(Sketcher.Constraint("DistanceY", 1, 2, 1, 1, Q("5.6 mm")))
sketch17.addConstraint(Sketcher.Constraint("DistanceX", -1, 1, 0, 2, Q("35.8 mm")))
sketch17.addConstraint(Sketcher.Constraint("DistanceY", 0, 2, -1, 1, Q("83.7 mm")))
pocket10 = body.newObject("PartDesign::Pocket", "Pocket009")
pocket10.Profile = sketch17
pocket10.Length = 10

sketch18 = body.newObject("Sketcher::SketchObject", "Sketch017")
sketch18.AttachmentSupport = (doc.getObject("XZ_Plane"), [""])
sketch18.MapMode = "FlatFace"
sketch18.AttachmentOffset = App.Placement(App.Vector(0, 0, -25), App.Rotation())
add_polygon(sketch18, [(9, -45), (9, -36), (18, -36), (18, -45)])
add_polygon(sketch18, [(9, -26), (9, -17), (18, -17), (18, -26)])
sketch18.addConstraint(Sketcher.Constraint("Vertical", 0))
sketch18.addConstraint(Sketcher.Constraint("Horizontal", 1))
sketch18.addConstraint(Sketcher.Constraint("Vertical", 2))
sketch18.addConstraint(Sketcher.Constraint("Horizontal", 3))
sketch18.addConstraint(Sketcher.Constraint("Vertical", 4))
sketch18.addConstraint(Sketcher.Constraint("Horizontal", 5))
sketch18.addConstraint(Sketcher.Constraint("Vertical", 6))
sketch18.addConstraint(Sketcher.Constraint("Horizontal", 7))
sketch18.addConstraint(Sketcher.Constraint("Vertical", 3, 2, 4, 2))
sketch18.addConstraint(Sketcher.Constraint("Vertical", 2, 2, 5, 2))
sketch18.addConstraint(Sketcher.Constraint("Equal", 7, 0))
sketch18.addConstraint(Sketcher.Constraint("Equal", 2, 4))
sketch18.addConstraint(Sketcher.Constraint("DistanceX", 1, 1, 1, 2, Q("9 mm")))
sketch18.addConstraint(Sketcher.Constraint("DistanceX", -1, 1, 0, 2, Q("9 mm")))
sketch18.addConstraint(Sketcher.Constraint("DistanceY", 0, 2, -1, 1, Q("36 mm")))
sketch18.addConstraint(Sketcher.Constraint("DistanceY", 4, 2, -1, 1, Q("17 mm")))
pad6 = body.newObject("PartDesign::Pad", "Pad005")
pad6.Profile = sketch18
pad6.Length = 25
pad6.Reversed = True

sketch19 = body.newObject("Sketcher::SketchObject", "Sketch018")
sketch19.AttachmentSupport = (doc.getObject("YZ_Plane"), [""])
sketch19.MapMode = "FlatFace"
sketch19.AttachmentOffset = App.Placement(App.Vector(0, 0, 9), App.Rotation())
add_polygon(sketch19, [(48.2, -24.3), (45.8, -24.3), (45.8, -18.7), (48.2, -18.7)])
sketch19.addConstraint(Sketcher.Constraint("Horizontal", 0))
sketch19.addConstraint(Sketcher.Constraint("Vertical", 1))
sketch19.addConstraint(Sketcher.Constraint("Horizontal", 2))
sketch19.addConstraint(Sketcher.Constraint("Vertical", 3))
sketch19.addConstraint(Sketcher.Constraint("DistanceX", 0, 2, 0, 1, Q("2.4 mm")))
sketch19.addConstraint(Sketcher.Constraint("DistanceY", 1, 1, 1, 2, Q("5.6 mm")))
sketch19.addConstraint(Sketcher.Constraint("DistanceX", -1, 1, 0, 2, Q("45.8 mm")))
sketch19.addConstraint(Sketcher.Constraint("DistanceY", 0, 2, -1, 1, Q("24.3 mm")))
pocket11 = body.newObject("PartDesign::Pocket", "Pocket010")
pocket11.Profile = sketch19
pocket11.Type = "UpToFirst"
pocket11.Reversed = True

sketch20 = body.newObject("Sketcher::SketchObject", "Sketch019")
sketch20.AttachmentSupport = (doc.getObject("YZ_Plane"), [""])
sketch20.MapMode = "FlatFace"
sketch20.AttachmentOffset = App.Placement(App.Vector(0, 0, 9), App.Rotation())
add_polygon(sketch20, [(48.2, -43.3), (45.8, -43.3), (45.8, -37.7), (48.2, -37.7)])
sketch20.addConstraint(Sketcher.Constraint("Horizontal", 0))
sketch20.addConstraint(Sketcher.Constraint("Vertical", 1))
sketch20.addConstraint(Sketcher.Constraint("Horizontal", 2))
sketch20.addConstraint(Sketcher.Constraint("Vertical", 3))
sketch20.addConstraint(Sketcher.Constraint("DistanceX", 0, 2, 0, 1, Q("2.4 mm")))
sketch20.addConstraint(Sketcher.Constraint("DistanceY", 1, 1, 1, 2, Q("5.6 mm")))
sketch20.addConstraint(Sketcher.Constraint("DistanceX", -1, 1, 0, 2, Q("45.8 mm")))
sketch20.addConstraint(Sketcher.Constraint("DistanceY", 0, 2, -1, 1, Q("43.3 mm")))
pocket12 = body.newObject("PartDesign::Pocket", "Pocket011")
pocket12.Profile = sketch20
pocket12.Type = "UpToFirst"
pocket12.Reversed = True

sketch21 = body.newObject("Sketcher::SketchObject", "Sketch020")
sketch21.AttachmentSupport = (doc.getObject("XZ_Plane"), [""])
sketch21.MapMode = "FlatFace"
sketch21.AttachmentOffset = App.Placement(App.Vector(0, 0, -50), App.Rotation())
sketch21.addGeometry(Part.Circle(App.Vector(13.5, -40.5, 0), App.Vector(0, 0, 1), 1.7), False)
sketch21.addGeometry(Part.Circle(App.Vector(13.5, -21.5, 0), App.Vector(0, 0, 1), 1.7), False)
sketch21.addConstraint(Sketcher.Constraint("Equal", 0, 1))
sketch21.addConstraint(Sketcher.Constraint("Vertical", 0, 3, 1, 3))
sketch21.addConstraint(Sketcher.Constraint("Diameter", 0, Q("3.4 mm")))
sketch21.addConstraint(Sketcher.Constraint("DistanceY", 0, 3, 1, 3, Q("19 mm")))
sketch21.addConstraint(Sketcher.Constraint("DistanceX", -1, 1, 0, 3, Q("13.5 mm")))
sketch21.addConstraint(Sketcher.Constraint("DistanceY", 0, 3, -1, 1, Q("40.5 mm")))
doc.recompute()
hole3 = body.newObject("PartDesign::Hole", "Hole002")
hole3.Profile = sketch21
hole3.ThreadType = "None"
hole3.Diameter = 3.4
hole3.DepthType = "Dimension"
hole3.Depth = 5
hole3.DrillPoint = "Angled"
hole3.DrillPointAngle = 118
hole3.Reversed = True

doc.recompute()
